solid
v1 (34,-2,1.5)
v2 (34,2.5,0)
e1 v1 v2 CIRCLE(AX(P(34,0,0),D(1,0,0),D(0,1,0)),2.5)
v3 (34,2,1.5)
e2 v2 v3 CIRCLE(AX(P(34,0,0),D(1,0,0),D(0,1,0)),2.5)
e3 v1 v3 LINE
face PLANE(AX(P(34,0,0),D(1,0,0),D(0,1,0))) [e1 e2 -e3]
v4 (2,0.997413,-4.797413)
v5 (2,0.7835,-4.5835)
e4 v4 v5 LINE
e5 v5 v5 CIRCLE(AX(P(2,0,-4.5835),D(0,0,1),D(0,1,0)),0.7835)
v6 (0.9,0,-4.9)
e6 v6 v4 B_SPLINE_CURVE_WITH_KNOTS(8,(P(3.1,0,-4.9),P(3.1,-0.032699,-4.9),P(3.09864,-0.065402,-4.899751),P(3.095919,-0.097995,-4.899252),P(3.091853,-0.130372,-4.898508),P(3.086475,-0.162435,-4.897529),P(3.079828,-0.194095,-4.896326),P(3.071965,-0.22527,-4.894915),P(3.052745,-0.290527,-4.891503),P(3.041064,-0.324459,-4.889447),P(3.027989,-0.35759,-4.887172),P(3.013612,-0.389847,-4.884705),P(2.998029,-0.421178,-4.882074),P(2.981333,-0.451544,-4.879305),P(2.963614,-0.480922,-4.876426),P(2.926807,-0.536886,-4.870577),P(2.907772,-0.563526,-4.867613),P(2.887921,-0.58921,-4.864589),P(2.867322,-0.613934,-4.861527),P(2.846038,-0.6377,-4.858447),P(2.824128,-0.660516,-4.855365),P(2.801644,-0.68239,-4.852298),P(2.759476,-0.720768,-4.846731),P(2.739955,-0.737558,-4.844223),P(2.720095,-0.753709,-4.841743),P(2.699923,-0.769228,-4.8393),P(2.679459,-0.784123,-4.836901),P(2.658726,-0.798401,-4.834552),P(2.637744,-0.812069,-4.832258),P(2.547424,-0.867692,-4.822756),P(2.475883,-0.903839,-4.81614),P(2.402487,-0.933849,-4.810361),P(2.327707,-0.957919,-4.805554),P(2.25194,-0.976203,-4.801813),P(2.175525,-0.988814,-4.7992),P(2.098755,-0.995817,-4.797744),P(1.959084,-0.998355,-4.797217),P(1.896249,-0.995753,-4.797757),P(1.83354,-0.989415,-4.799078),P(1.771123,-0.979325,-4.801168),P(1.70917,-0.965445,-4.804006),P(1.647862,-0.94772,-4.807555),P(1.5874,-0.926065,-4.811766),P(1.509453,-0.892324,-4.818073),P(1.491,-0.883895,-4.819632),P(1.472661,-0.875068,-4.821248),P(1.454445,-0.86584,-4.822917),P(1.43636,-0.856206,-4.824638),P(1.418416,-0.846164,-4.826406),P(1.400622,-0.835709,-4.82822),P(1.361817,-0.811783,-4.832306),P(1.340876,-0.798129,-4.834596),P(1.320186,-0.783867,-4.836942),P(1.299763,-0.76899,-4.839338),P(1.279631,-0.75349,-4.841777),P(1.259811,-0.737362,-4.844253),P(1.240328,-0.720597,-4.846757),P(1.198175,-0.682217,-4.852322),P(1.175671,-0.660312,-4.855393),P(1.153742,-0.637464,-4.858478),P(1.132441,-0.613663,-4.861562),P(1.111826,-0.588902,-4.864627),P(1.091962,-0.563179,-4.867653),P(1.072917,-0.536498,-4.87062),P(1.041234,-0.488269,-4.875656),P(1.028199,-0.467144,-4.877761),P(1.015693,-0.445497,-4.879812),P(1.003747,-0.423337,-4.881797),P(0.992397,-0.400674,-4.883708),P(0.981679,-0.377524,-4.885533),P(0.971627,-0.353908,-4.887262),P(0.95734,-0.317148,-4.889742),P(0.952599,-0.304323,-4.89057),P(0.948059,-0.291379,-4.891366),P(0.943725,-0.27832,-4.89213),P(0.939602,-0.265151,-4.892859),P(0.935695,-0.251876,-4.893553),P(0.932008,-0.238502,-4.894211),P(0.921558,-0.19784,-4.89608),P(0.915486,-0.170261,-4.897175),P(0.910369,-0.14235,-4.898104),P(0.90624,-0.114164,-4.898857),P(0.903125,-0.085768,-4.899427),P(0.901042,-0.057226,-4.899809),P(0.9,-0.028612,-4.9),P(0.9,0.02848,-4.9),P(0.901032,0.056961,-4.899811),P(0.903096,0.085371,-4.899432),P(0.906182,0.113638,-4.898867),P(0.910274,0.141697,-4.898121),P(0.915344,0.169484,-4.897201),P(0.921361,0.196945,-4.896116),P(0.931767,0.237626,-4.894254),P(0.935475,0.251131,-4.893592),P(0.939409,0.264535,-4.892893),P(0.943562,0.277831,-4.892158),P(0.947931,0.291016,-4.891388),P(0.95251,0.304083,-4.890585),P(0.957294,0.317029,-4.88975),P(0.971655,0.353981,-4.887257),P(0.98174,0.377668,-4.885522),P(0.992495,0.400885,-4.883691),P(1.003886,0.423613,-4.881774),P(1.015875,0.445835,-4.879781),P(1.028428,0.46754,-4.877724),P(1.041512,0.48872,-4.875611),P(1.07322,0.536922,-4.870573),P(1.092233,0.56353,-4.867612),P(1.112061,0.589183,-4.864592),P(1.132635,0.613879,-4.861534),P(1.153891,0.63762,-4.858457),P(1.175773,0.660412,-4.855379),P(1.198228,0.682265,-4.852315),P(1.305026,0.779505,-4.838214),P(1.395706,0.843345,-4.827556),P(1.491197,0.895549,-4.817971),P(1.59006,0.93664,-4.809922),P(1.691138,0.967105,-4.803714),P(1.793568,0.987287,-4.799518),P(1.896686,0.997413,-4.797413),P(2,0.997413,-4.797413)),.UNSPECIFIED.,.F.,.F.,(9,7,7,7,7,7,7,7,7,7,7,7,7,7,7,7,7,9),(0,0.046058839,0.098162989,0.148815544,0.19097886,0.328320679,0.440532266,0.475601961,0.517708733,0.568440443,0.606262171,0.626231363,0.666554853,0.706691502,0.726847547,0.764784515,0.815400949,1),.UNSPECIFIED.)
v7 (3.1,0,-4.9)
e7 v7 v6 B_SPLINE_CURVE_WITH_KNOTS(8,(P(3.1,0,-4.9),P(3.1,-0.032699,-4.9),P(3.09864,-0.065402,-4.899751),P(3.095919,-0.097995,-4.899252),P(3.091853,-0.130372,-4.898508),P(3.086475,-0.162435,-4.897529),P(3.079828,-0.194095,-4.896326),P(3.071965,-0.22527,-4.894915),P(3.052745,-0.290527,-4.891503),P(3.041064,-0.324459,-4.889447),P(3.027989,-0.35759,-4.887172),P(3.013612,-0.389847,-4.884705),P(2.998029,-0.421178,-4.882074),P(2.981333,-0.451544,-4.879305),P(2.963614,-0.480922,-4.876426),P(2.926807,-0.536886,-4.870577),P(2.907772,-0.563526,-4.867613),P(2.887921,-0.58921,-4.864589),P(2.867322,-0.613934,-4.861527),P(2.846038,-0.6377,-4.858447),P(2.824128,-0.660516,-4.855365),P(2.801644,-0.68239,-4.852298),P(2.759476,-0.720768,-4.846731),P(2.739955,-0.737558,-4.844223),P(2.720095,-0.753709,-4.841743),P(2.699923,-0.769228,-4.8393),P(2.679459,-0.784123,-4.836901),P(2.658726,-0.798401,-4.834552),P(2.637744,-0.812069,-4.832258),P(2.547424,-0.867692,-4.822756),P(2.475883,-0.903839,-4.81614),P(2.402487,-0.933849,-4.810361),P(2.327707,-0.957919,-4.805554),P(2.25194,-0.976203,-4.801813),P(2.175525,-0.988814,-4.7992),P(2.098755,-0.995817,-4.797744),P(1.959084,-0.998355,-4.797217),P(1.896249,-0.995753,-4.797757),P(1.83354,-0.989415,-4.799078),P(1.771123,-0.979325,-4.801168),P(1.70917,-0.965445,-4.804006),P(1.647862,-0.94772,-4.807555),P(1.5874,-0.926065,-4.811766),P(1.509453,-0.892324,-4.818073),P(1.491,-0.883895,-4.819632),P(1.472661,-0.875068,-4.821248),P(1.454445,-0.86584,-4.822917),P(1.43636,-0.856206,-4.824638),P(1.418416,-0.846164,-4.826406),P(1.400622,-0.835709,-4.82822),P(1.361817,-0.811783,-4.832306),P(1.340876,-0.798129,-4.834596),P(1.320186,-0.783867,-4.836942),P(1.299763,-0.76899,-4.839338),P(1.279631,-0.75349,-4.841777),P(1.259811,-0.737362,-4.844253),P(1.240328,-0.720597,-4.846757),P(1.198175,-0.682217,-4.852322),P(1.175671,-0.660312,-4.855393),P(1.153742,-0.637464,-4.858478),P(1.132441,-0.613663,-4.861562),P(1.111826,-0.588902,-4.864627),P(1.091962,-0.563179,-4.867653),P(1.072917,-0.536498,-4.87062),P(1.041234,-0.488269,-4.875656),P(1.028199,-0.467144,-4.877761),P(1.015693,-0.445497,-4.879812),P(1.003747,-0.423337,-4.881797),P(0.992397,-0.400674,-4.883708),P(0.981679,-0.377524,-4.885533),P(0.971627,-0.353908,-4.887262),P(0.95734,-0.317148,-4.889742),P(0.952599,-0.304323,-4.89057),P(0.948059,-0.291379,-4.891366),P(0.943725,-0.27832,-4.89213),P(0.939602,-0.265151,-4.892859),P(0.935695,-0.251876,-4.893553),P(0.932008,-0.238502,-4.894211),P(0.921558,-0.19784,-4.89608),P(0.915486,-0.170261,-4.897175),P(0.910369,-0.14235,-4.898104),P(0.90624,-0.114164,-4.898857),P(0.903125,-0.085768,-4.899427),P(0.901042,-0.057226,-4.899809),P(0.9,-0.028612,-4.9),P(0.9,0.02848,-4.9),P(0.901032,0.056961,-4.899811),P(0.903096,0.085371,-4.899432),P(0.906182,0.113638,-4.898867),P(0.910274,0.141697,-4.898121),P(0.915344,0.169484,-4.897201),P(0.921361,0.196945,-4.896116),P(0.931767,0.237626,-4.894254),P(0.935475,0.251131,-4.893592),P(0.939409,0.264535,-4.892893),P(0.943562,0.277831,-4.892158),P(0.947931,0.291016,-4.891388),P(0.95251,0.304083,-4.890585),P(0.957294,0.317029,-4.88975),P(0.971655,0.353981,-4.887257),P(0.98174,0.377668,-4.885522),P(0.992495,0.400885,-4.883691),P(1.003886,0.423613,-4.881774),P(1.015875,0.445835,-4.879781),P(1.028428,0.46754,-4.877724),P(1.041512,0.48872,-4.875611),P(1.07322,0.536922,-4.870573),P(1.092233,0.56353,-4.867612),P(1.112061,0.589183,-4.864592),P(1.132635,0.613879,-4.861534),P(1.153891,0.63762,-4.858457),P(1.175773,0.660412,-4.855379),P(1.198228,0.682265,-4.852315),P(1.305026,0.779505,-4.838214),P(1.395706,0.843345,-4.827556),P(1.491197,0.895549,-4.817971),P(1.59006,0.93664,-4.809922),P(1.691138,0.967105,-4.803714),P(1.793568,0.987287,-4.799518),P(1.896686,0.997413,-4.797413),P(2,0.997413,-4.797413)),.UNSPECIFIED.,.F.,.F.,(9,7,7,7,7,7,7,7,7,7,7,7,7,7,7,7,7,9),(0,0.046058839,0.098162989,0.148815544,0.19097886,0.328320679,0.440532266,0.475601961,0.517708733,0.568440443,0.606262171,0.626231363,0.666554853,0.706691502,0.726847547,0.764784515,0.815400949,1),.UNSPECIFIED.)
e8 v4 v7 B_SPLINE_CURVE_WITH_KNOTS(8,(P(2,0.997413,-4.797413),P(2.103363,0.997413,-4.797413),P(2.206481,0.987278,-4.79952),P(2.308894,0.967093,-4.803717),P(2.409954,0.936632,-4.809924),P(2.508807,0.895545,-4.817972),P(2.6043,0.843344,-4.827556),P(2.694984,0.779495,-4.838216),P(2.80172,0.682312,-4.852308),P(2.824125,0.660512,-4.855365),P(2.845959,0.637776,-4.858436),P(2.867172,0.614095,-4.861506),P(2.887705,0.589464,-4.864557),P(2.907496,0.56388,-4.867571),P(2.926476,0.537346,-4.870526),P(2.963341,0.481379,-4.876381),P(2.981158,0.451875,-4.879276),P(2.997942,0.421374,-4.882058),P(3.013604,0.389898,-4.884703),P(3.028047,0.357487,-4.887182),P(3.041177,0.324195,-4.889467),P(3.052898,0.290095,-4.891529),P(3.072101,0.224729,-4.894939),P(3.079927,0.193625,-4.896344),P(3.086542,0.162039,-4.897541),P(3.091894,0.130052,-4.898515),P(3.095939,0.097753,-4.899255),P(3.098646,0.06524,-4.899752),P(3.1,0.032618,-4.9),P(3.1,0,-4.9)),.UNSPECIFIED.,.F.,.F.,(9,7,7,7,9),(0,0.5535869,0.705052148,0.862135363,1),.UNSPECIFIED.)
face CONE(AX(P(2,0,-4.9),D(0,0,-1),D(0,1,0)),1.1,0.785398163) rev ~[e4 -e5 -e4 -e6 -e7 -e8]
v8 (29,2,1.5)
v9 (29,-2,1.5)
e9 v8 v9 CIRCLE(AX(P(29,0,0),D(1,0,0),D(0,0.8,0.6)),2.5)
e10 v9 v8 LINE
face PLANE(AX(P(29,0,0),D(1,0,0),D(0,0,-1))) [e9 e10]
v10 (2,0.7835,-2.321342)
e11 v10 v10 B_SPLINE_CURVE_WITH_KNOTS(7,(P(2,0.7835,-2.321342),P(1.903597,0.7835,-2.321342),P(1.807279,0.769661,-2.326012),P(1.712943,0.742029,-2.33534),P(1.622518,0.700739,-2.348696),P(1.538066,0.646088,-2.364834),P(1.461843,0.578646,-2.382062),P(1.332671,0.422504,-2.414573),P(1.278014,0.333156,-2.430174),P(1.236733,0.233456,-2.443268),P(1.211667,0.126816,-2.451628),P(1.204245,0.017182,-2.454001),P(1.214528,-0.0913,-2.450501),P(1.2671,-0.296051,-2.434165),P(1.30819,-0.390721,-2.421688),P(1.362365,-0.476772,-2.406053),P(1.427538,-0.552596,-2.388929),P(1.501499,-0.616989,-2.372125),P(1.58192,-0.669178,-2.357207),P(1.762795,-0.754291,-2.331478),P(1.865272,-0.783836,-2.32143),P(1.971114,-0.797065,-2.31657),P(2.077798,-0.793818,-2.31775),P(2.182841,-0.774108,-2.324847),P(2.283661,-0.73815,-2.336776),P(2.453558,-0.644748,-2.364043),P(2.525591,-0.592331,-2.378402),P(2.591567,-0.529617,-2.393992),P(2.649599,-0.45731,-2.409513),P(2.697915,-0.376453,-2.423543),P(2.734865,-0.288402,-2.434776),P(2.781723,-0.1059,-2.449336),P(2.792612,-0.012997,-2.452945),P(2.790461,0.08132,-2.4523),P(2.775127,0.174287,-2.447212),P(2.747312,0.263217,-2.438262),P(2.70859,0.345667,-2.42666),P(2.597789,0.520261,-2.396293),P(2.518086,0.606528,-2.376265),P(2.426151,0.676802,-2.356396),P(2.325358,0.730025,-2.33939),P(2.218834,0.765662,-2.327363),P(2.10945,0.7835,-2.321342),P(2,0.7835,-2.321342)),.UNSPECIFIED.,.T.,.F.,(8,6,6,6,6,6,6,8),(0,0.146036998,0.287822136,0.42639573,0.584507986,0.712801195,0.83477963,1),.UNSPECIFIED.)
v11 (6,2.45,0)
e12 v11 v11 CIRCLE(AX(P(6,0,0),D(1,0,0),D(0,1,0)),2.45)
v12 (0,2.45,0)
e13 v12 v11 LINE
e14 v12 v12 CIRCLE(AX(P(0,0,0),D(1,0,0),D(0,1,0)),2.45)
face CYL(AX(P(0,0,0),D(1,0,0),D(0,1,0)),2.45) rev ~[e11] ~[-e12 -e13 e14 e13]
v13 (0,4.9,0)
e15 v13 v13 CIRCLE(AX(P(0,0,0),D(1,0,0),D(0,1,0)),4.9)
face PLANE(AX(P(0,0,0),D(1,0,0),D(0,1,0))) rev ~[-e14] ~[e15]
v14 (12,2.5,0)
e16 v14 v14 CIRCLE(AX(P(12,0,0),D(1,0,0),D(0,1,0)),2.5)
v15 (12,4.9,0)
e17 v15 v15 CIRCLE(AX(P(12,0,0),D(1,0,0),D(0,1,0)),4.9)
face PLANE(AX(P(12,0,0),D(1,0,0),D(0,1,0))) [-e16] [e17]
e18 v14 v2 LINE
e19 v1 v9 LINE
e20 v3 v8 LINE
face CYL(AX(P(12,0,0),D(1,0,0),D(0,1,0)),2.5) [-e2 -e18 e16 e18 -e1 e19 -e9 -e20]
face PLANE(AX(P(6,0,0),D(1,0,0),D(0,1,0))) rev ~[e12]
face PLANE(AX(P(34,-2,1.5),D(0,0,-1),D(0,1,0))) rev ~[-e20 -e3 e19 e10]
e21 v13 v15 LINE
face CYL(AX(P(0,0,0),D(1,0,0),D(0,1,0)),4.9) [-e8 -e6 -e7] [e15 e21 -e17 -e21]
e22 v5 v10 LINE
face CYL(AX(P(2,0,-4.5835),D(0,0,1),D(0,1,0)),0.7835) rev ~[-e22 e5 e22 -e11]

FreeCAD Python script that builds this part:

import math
import FreeCAD as App
import Part
import Sketcher

V = App.Vector


def add_polygon(sketch, points):
    """Adds a closed chain of lines whose ends are joined by coincident constraints."""
    first, n = sketch.GeometryCount, len(points)
    for a, b in zip(points, points[1:] + points[:1]):
        sketch.addGeometry(Part.LineSegment(App.Vector(*a, 0), App.Vector(*b, 0)), False)
    for i in range(n):
        sketch.addConstraint(Sketcher.Constraint("Coincident", first + i, 2, first + (i + 1) % n, 1))

doc = App.newDocument("Part")
params = doc.addObject("Spreadsheet::Sheet", "Params")
for row, (alias, value) in enumerate([
    ("sketch1_width", "12 mm"),
    ("sketch1_width2", "6 mm"),
    ("sketch1_height", "2.5 mm"),
    ("revolution_angle", "360 deg"),
    ("sketch2_radius", "2.5 mm"),
    ("pocket1_length", "5 mm"),
    ("hole_diameter", "1.567 mm"),
    ("hole_depth", "5 mm"),
    ("hole_csink_diameter", "2.2 mm"),
], start=1):
    params.set(f"A{row}", alias)
    params.set(f"B{row}", "=" + value)
    params.setAlias(f"B{row}", alias)

body = doc.addObject("PartDesign::Body", "Body")

# Sketch on XY plane
sketch1 = body.newObject("Sketcher::SketchObject", "Sketch")
sketch1.AttachmentSupport = (doc.getObject("XY_Plane"), [""])
sketch1.MapMode = "FlatFace"
add_polygon(sketch1, [(12, 4.9), (0, 4.9), (0, 2.45), (6, 2.45), (6, 0), (34, 0), (34, 2.5), (12, 2.5)])  # lines 0-7
sketch1.addConstraint(Sketcher.Constraint("Horizontal", 0))
sketch1.addConstraint(Sketcher.Constraint("Vertical", 1))
sketch1.addConstraint(Sketcher.Constraint("Horizontal", 2))
sketch1.addConstraint(Sketcher.Constraint("Vertical", 3))
sketch1.addConstraint(Sketcher.Constraint("Horizontal", 4))
sketch1.addConstraint(Sketcher.Constraint("Vertical", 5))
sketch1.addConstraint(Sketcher.Constraint("Horizontal", 6))
sketch1.addConstraint(Sketcher.Constraint("Vertical", 7))
sketch1.addConstraint(Sketcher.Constraint("PointOnObject", 0, 2, -2))
sketch1.addConstraint(Sketcher.Constraint("PointOnObject", 3, 2, -1))
sketch1.addConstraint(Sketcher.Constraint("Equal", 1, 3))
sketch1.addConstraint(Sketcher.Constraint("DistanceX", 0, 2, 0, 1, 12.0))
sketch1.addConstraint(Sketcher.Constraint("DistanceX", 2, 1, 2, 2, 6.0))
sketch1.addConstraint(Sketcher.Constraint("DistanceX", -1, 1, 4, 2, 34.0))
sketch1.addConstraint(Sketcher.Constraint("DistanceY", -1, 1, 0, 2, 4.9))
sketch1.addConstraint(Sketcher.Constraint("DistanceY", 5, 1, 5, 2, 2.5))
sketch1.setExpression("Constraints[19]", "Params.sketch1_width")
sketch1.setExpression("Constraints[20]", "Params.sketch1_width2")
sketch1.setExpression("Constraints[23]", "Params.sketch1_height")
revolution = body.newObject("PartDesign::Revolution", "Revolution")
revolution.Profile = sketch1
revolution.ReferenceAxis = (sketch1, ["H_Axis"])
revolution.setExpression("Angle", "Params.revolution_angle")

# Sketch on YZ plane
sketch2 = body.newObject("Sketcher::SketchObject", "Sketch001")
sketch2.AttachmentSupport = (doc.getObject("YZ_Plane"), [""])
sketch2.MapMode = "FlatFace"
sketch2.AttachmentOffset = App.Placement(V(0, 0, 34), App.Rotation())
sketch2.addGeometry(Part.ArcOfCircle(Part.Circle(V(0, 0, 0), V(0, 0, 1), 2.5), math.radians(36.869898), math.radians(143.130102)), False)
sketch2.addGeometry(Part.LineSegment(V(-2, 1.5, 0), V(2, 1.5, 0)), False)
sketch2.addConstraint(Sketcher.Constraint("Coincident", 0, 1, 1, 2))
sketch2.addConstraint(Sketcher.Constraint("Coincident", 1, 1, 0, 2))
sketch2.addConstraint(Sketcher.Constraint("Horizontal", 1))
sketch2.addConstraint(Sketcher.Constraint("Coincident", 0, 3, -1, 1))
sketch2.addConstraint(Sketcher.Constraint("DistanceY", -1, 1, 0, 1, 1.5))
sketch2.addConstraint(Sketcher.Constraint("Radius", 0, 2.5))
sketch2.setExpression("Constraints[5]", "Params.sketch2_radius")
pocket1 = body.newObject("PartDesign::Pocket", "Pocket")
pocket1.Profile = sketch2
pocket1.setExpression("Length", "Params.pocket1_length")

# Sketch on XY plane
sketch3 = body.newObject("Sketcher::SketchObject", "Sketch002")
sketch3.AttachmentSupport = (doc.getObject("XY_Plane"), [""])
sketch3.MapMode = "FlatFace"
sketch3.AttachmentOffset = App.Placement(V(0, 0, -4.9), App.Rotation())
sketch3.addGeometry(Part.Circle(V(2, 0, 0), V(0, 0, 1), 0.7835), False)
sketch3.addConstraint(Sketcher.Constraint("PointOnObject", 0, 3, -1))
sketch3.addConstraint(Sketcher.Constraint("Diameter", 0, 1.567))
sketch3.addConstraint(Sketcher.Constraint("DistanceX", -1, 1, 0, 3, 2.0))
doc.recompute()
hole = body.newObject("PartDesign::Hole", "Hole")
hole.Profile = sketch3
hole.ThreadType = "None"
hole.setExpression("Diameter", "Params.hole_diameter")
hole.DepthType = "Dimension"
hole.setExpression("Depth", "Params.hole_depth")
hole.DrillPoint = "Angled"
hole.DrillPointAngle = 118
hole.HoleCutType = "Countersink"
hole.setExpression("HoleCutDiameter", "Params.hole_csink_diameter")
hole.HoleCutCountersinkAngle = 90
hole.Reversed = True

doc.recompute()
